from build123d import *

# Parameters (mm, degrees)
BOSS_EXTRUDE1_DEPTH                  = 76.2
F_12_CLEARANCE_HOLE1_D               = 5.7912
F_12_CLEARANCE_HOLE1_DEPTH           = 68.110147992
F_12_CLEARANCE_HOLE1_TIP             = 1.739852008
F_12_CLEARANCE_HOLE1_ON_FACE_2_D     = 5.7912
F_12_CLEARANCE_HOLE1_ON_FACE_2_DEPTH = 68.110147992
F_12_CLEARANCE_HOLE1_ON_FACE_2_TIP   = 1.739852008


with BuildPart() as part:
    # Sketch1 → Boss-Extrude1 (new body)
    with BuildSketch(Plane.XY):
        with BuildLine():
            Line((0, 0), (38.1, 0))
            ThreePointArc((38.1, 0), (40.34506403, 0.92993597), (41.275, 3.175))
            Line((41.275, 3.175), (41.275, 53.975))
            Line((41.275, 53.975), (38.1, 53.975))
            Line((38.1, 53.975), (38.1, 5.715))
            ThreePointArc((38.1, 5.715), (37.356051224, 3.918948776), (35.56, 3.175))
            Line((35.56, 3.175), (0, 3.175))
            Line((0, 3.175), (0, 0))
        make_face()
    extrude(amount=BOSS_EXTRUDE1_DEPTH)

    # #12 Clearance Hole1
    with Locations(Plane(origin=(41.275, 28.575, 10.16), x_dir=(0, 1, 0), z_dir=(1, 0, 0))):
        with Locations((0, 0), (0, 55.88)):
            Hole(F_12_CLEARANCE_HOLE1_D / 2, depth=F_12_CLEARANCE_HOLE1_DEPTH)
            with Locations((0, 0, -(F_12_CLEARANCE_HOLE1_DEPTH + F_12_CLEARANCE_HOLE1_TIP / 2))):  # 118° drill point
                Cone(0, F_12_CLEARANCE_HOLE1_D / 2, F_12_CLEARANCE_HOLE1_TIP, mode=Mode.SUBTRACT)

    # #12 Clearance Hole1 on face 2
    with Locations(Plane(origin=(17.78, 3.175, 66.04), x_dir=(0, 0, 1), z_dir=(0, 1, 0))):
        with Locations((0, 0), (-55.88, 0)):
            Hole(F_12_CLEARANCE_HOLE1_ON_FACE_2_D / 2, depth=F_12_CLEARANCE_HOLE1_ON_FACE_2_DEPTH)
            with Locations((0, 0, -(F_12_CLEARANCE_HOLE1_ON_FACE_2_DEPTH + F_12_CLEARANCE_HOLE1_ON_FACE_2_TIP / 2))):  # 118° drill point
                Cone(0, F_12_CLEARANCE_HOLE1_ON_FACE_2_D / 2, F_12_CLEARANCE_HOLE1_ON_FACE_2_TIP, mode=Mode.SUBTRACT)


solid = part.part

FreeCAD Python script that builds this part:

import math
import FreeCAD as App
import Part
import Sketcher
from FreeCAD import Vector
Q = App.Units.Quantity

doc = App.newDocument("Part")
params = doc.addObject("Spreadsheet::Sheet", "Params")
for row, (alias, value) in enumerate([
    ("sketch1_radius", "0.1 in"),
    ("sketch1_height", "2 in"),
    ("sketch1_width", "1.5 in"),
    ("sketch1_radius2", "0.125 in"),
    ("pad1_length", "3 in"),
    ("sketch2_diameter", "0.228 in"),
    ("hole_diameter", "0.228 in"),
    ("hole_depth", "68.110148 mm"),
    ("sketch3_diameter", "0.228 in"),
    ("hole2_diameter", "0.228 in"),
    ("hole2_depth", "68.110148 mm"),
], start=1):
    params.set(f"A{row}", alias)
    params.set(f"B{row}", "=" + value)
    params.setAlias(f"B{row}", alias)

body = doc.addObject("PartDesign::Body", "Body")

sketch1 = body.newObject("Sketcher::SketchObject", "Sketch")
sketch1.AttachmentSupport = (doc.getObject("XY_Plane"), [""])
sketch1.MapMode = "FlatFace"
sketch1.addGeometry(Part.LineSegment(Vector(0, 0, 0), Vector(38.1, 0, 0)), False)
sketch1.addGeometry(Part.ArcOfCircle(Part.Circle(Vector(38.1, 3.2, 0), Vector(0, 0, 1), 3.2), math.radians(-90), math.radians(0)), False)
sketch1.addGeometry(Part.LineSegment(Vector(41.3, 3.2, 0), Vector(41.3, 54, 0)), False)
sketch1.addGeometry(Part.LineSegment(Vector(41.3, 54, 0), Vector(38.1, 54, 0)), False)
sketch1.addGeometry(Part.LineSegment(Vector(38.1, 54, 0), Vector(38.1, 5.7, 0)), False)
sketch1.addGeometry(Part.ArcOfCircle(Part.Circle(Vector(35.6, 5.7, 0), Vector(0, 0, 1), 2.5), math.radians(-90), math.radians(0)), False)
sketch1.addGeometry(Part.LineSegment(Vector(35.6, 3.2, 0), Vector(0, 3.2, 0)), False)
sketch1.addGeometry(Part.LineSegment(Vector(0, 3.2, 0), Vector(0, 0, 0)), False)
sketch1.addConstraint(Sketcher.Constraint("Tangent", 0, 2, 1, 1))
sketch1.addConstraint(Sketcher.Constraint("Tangent", 1, 2, 2, 1))
sketch1.addConstraint(Sketcher.Constraint("Coincident", 2, 2, 3, 1))
sketch1.addConstraint(Sketcher.Constraint("Coincident", 3, 2, 4, 1))
sketch1.addConstraint(Sketcher.Constraint("Tangent", 4, 2, 5, 2))
sketch1.addConstraint(Sketcher.Constraint("Tangent", 5, 1, 6, 1))
sketch1.addConstraint(Sketcher.Constraint("Coincident", 6, 2, 7, 1))
sketch1.addConstraint(Sketcher.Constraint("Coincident", 7, 2, 0, 1))
sketch1.addConstraint(Sketcher.Constraint("Horizontal", 0))
sketch1.addConstraint(Sketcher.Constraint("Vertical", 2))
sketch1.addConstraint(Sketcher.Constraint("Horizontal", 3))
sketch1.addConstraint(Sketcher.Constraint("Vertical", 4))
sketch1.addConstraint(Sketcher.Constraint("Horizontal", 6))
sketch1.addConstraint(Sketcher.Constraint("Vertical", 7))
sketch1.addConstraint(Sketcher.Constraint("Coincident", 7, 2, -1, 1))
sketch1.addConstraint(Sketcher.Constraint("Horizontal", 1, 2, 5, 1))
sketch1.addConstraint(Sketcher.Constraint("Vertical", 0, 2, 3, 2))
sketch1.addConstraint(Sketcher.Constraint("Radius", 5, Q("0.1 in")))
sketch1.addConstraint(Sketcher.Constraint("DistanceY", 2, 1, 2, 2, Q("2 in")))
sketch1.addConstraint(Sketcher.Constraint("DistanceX", 0, 1, 0, 2, Q("1.5 in")))
sketch1.addConstraint(Sketcher.Constraint("Radius", 1, Q("0.125 in")))
sketch1.setExpression("Constraints[17]", "Params.sketch1_radius")
sketch1.setExpression("Constraints[18]", "Params.sketch1_height")
sketch1.setExpression("Constraints[19]", "Params.sketch1_width")
sketch1.setExpression("Constraints[20]", "Params.sketch1_radius2")
pad1 = body.newObject("PartDesign::Pad", "Pad")
pad1.Profile = sketch1
pad1.setExpression("Length", "Params.pad1_length")

sketch2 = body.newObject("Sketcher::SketchObject", "Sketch001")
sketch2.AttachmentSupport = (doc.getObject("YZ_Plane"), [""])
sketch2.MapMode = "FlatFace"
sketch2.AttachmentOffset = App.Placement(Vector(0, 0, 1.625 * 25.4), App.Rotation())
sketch2.addGeometry(Part.Circle(Vector(28.6, 10.2, 0), Vector(0, 0, 1), 2.9), False)
sketch2.addGeometry(Part.Circle(Vector(28.6, 66, 0), Vector(0, 0, 1), 2.9), False)
sketch2.addConstraint(Sketcher.Constraint("Equal", 0, 1))
sketch2.addConstraint(Sketcher.Constraint("Vertical", 0, 3, 1, 3))
sketch2.addConstraint(Sketcher.Constraint("Diameter", 0, Q("0.228 in")))
sketch2.addConstraint(Sketcher.Constraint("DistanceY", -1, 1, 0, 3, Q("0.4 in")))
sketch2.addConstraint(Sketcher.Constraint("DistanceY", -1, 1, 1, 3, Q("2.6 in")))
sketch2.addConstraint(Sketcher.Constraint("DistanceX", -1, 1, 0, 3, Q("1.125 in")))
sketch2.setExpression("Constraints[2]", "Params.sketch2_diameter")
doc.recompute()
hole = body.newObject("PartDesign::Hole", "Hole")
hole.Profile = sketch2
hole.ThreadType = "None"
hole.setExpression("Diameter", "Params.hole_diameter")
hole.DepthType = "Dimension"
hole.setExpression("Depth", "Params.hole_depth")
hole.DrillPoint = "Angled"
hole.DrillPointAngle = 118

sketch3 = body.newObject("Sketcher::SketchObject", "Sketch002")
sketch3.AttachmentSupport = (doc.getObject("XZ_Plane"), [""])
sketch3.MapMode = "FlatFace"
sketch3.AttachmentOffset = App.Placement(Vector(0, 0, -0.125 * 25.4), App.Rotation())
sketch3.addGeometry(Part.Circle(Vector(17.8, 66, 0), Vector(0, 0, 1), 2.9), False)
sketch3.addGeometry(Part.Circle(Vector(17.8, 10.2, 0), Vector(0, 0, 1), 2.9), False)
sketch3.addConstraint(Sketcher.Constraint("Equal", 0, 1))
sketch3.addConstraint(Sketcher.Constraint("Vertical", 0, 3, 1, 3))
sketch3.addConstraint(Sketcher.Constraint("Diameter", 0, Q("0.228 in")))
sketch3.addConstraint(Sketcher.Constraint("DistanceX", -1, 1, 0, 3, Q("0.7 in")))
sketch3.addConstraint(Sketcher.Constraint("DistanceY", -1, 1, 0, 3, Q("2.6 in")))
sketch3.addConstraint(Sketcher.Constraint("DistanceY", -1, 1, 1, 3, Q("0.4 in")))
sketch3.setExpression("Constraints[2]", "Params.sketch3_diameter")
doc.recompute()
hole2 = body.newObject("PartDesign::Hole", "Hole001")
hole2.Profile = sketch3
hole2.ThreadType = "None"
hole2.setExpression("Diameter", "Params.hole2_diameter")
hole2.DepthType = "Dimension"
hole2.setExpression("Depth", "Params.hole2_depth")
hole2.DrillPoint = "Angled"
hole2.DrillPointAngle = 118
hole2.Reversed = True

doc.recompute()
